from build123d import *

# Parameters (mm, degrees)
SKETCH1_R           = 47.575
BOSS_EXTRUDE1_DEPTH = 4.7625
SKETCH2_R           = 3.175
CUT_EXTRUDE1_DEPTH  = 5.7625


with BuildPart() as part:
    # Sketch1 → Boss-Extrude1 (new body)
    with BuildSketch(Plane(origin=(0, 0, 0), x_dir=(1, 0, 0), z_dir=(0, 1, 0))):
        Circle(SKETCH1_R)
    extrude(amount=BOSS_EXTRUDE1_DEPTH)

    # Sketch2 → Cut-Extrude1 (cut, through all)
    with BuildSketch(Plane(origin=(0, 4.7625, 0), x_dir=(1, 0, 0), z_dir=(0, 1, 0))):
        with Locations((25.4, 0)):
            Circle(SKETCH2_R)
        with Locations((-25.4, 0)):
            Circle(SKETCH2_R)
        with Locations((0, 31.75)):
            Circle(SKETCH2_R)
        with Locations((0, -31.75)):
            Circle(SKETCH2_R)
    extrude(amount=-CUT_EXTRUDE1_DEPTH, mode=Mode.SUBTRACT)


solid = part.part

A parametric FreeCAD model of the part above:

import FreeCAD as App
import Part
import Sketcher
from FreeCAD import Vector
Q = App.Units.Quantity

doc = App.newDocument("Part")
body = doc.addObject("PartDesign::Body", "Body")

sketch1 = body.newObject("Sketcher::SketchObject", "Sketch")
sketch1.AttachmentSupport = (doc.getObject("XZ_Plane"), [""])
sketch1.MapMode = "FlatFace"
sketch1.addGeometry(Part.Circle(Vector(0, 0, 0), Vector(0, 0, 1), 48), False)
sketch1.addConstraint(Sketcher.Constraint("Coincident", 0, 3, -1, 1))
sketch1.addConstraint(Sketcher.Constraint("Diameter", 0, Q("95.15 mm")))
pad1 = body.newObject("PartDesign::Pad", "Pad")
pad1.Profile = sketch1
pad1.Length = Q("0.1875 in")
pad1.Reversed = True

sketch2 = body.newObject("Sketcher::SketchObject", "Sketch001")
sketch2.AttachmentSupport = (doc.getObject("XZ_Plane"), [""])
sketch2.MapMode = "FlatFace"
sketch2.AttachmentOffset = App.Placement(Vector(0, 0, -0.1875 * 25.4), App.Rotation())
sketch2.addGeometry(Part.Circle(Vector(25.4, 0, 0), Vector(0, 0, 1), 3.2), False)
sketch2.addGeometry(Part.Circle(Vector(-25.4, 0, 0), Vector(0, 0, 1), 3.2), False)
sketch2.addGeometry(Part.Circle(Vector(0, -31.8, 0), Vector(0, 0, 1), 3.2), False)
sketch2.addGeometry(Part.Circle(Vector(0, 31.8, 0), Vector(0, 0, 1), 3.2), False)
sketch2.addConstraint(Sketcher.Constraint("Equal", 0, 1))
sketch2.addConstraint(Sketcher.Constraint("Equal", 1, 2))
sketch2.addConstraint(Sketcher.Constraint("Equal", 2, 3))
sketch2.addConstraint(Sketcher.Constraint("Symmetric", 0, 3, 1, 3, -1, 1))
sketch2.addConstraint(Sketcher.Constraint("Symmetric", 2, 3, 3, 3, -1, 1))
sketch2.addConstraint(Sketcher.Constraint("PointOnObject", 0, 3, -1))
sketch2.addConstraint(Sketcher.Constraint("PointOnObject", 2, 3, -2))
sketch2.addConstraint(Sketcher.Constraint("Diameter", 0, Q("0.25 in")))
sketch2.addConstraint(Sketcher.Constraint("DistanceX", -1, 1, 0, 3, Q("1 in")))
sketch2.addConstraint(Sketcher.Constraint("DistanceY", 2, 3, 3, 3, Q("2.5 in")))
pocket1 = body.newObject("PartDesign::Pocket", "Pocket")
pocket1.Profile = sketch2
pocket1.Type = "ThroughAll"
pocket1.Reversed = True

doc.recompute()
